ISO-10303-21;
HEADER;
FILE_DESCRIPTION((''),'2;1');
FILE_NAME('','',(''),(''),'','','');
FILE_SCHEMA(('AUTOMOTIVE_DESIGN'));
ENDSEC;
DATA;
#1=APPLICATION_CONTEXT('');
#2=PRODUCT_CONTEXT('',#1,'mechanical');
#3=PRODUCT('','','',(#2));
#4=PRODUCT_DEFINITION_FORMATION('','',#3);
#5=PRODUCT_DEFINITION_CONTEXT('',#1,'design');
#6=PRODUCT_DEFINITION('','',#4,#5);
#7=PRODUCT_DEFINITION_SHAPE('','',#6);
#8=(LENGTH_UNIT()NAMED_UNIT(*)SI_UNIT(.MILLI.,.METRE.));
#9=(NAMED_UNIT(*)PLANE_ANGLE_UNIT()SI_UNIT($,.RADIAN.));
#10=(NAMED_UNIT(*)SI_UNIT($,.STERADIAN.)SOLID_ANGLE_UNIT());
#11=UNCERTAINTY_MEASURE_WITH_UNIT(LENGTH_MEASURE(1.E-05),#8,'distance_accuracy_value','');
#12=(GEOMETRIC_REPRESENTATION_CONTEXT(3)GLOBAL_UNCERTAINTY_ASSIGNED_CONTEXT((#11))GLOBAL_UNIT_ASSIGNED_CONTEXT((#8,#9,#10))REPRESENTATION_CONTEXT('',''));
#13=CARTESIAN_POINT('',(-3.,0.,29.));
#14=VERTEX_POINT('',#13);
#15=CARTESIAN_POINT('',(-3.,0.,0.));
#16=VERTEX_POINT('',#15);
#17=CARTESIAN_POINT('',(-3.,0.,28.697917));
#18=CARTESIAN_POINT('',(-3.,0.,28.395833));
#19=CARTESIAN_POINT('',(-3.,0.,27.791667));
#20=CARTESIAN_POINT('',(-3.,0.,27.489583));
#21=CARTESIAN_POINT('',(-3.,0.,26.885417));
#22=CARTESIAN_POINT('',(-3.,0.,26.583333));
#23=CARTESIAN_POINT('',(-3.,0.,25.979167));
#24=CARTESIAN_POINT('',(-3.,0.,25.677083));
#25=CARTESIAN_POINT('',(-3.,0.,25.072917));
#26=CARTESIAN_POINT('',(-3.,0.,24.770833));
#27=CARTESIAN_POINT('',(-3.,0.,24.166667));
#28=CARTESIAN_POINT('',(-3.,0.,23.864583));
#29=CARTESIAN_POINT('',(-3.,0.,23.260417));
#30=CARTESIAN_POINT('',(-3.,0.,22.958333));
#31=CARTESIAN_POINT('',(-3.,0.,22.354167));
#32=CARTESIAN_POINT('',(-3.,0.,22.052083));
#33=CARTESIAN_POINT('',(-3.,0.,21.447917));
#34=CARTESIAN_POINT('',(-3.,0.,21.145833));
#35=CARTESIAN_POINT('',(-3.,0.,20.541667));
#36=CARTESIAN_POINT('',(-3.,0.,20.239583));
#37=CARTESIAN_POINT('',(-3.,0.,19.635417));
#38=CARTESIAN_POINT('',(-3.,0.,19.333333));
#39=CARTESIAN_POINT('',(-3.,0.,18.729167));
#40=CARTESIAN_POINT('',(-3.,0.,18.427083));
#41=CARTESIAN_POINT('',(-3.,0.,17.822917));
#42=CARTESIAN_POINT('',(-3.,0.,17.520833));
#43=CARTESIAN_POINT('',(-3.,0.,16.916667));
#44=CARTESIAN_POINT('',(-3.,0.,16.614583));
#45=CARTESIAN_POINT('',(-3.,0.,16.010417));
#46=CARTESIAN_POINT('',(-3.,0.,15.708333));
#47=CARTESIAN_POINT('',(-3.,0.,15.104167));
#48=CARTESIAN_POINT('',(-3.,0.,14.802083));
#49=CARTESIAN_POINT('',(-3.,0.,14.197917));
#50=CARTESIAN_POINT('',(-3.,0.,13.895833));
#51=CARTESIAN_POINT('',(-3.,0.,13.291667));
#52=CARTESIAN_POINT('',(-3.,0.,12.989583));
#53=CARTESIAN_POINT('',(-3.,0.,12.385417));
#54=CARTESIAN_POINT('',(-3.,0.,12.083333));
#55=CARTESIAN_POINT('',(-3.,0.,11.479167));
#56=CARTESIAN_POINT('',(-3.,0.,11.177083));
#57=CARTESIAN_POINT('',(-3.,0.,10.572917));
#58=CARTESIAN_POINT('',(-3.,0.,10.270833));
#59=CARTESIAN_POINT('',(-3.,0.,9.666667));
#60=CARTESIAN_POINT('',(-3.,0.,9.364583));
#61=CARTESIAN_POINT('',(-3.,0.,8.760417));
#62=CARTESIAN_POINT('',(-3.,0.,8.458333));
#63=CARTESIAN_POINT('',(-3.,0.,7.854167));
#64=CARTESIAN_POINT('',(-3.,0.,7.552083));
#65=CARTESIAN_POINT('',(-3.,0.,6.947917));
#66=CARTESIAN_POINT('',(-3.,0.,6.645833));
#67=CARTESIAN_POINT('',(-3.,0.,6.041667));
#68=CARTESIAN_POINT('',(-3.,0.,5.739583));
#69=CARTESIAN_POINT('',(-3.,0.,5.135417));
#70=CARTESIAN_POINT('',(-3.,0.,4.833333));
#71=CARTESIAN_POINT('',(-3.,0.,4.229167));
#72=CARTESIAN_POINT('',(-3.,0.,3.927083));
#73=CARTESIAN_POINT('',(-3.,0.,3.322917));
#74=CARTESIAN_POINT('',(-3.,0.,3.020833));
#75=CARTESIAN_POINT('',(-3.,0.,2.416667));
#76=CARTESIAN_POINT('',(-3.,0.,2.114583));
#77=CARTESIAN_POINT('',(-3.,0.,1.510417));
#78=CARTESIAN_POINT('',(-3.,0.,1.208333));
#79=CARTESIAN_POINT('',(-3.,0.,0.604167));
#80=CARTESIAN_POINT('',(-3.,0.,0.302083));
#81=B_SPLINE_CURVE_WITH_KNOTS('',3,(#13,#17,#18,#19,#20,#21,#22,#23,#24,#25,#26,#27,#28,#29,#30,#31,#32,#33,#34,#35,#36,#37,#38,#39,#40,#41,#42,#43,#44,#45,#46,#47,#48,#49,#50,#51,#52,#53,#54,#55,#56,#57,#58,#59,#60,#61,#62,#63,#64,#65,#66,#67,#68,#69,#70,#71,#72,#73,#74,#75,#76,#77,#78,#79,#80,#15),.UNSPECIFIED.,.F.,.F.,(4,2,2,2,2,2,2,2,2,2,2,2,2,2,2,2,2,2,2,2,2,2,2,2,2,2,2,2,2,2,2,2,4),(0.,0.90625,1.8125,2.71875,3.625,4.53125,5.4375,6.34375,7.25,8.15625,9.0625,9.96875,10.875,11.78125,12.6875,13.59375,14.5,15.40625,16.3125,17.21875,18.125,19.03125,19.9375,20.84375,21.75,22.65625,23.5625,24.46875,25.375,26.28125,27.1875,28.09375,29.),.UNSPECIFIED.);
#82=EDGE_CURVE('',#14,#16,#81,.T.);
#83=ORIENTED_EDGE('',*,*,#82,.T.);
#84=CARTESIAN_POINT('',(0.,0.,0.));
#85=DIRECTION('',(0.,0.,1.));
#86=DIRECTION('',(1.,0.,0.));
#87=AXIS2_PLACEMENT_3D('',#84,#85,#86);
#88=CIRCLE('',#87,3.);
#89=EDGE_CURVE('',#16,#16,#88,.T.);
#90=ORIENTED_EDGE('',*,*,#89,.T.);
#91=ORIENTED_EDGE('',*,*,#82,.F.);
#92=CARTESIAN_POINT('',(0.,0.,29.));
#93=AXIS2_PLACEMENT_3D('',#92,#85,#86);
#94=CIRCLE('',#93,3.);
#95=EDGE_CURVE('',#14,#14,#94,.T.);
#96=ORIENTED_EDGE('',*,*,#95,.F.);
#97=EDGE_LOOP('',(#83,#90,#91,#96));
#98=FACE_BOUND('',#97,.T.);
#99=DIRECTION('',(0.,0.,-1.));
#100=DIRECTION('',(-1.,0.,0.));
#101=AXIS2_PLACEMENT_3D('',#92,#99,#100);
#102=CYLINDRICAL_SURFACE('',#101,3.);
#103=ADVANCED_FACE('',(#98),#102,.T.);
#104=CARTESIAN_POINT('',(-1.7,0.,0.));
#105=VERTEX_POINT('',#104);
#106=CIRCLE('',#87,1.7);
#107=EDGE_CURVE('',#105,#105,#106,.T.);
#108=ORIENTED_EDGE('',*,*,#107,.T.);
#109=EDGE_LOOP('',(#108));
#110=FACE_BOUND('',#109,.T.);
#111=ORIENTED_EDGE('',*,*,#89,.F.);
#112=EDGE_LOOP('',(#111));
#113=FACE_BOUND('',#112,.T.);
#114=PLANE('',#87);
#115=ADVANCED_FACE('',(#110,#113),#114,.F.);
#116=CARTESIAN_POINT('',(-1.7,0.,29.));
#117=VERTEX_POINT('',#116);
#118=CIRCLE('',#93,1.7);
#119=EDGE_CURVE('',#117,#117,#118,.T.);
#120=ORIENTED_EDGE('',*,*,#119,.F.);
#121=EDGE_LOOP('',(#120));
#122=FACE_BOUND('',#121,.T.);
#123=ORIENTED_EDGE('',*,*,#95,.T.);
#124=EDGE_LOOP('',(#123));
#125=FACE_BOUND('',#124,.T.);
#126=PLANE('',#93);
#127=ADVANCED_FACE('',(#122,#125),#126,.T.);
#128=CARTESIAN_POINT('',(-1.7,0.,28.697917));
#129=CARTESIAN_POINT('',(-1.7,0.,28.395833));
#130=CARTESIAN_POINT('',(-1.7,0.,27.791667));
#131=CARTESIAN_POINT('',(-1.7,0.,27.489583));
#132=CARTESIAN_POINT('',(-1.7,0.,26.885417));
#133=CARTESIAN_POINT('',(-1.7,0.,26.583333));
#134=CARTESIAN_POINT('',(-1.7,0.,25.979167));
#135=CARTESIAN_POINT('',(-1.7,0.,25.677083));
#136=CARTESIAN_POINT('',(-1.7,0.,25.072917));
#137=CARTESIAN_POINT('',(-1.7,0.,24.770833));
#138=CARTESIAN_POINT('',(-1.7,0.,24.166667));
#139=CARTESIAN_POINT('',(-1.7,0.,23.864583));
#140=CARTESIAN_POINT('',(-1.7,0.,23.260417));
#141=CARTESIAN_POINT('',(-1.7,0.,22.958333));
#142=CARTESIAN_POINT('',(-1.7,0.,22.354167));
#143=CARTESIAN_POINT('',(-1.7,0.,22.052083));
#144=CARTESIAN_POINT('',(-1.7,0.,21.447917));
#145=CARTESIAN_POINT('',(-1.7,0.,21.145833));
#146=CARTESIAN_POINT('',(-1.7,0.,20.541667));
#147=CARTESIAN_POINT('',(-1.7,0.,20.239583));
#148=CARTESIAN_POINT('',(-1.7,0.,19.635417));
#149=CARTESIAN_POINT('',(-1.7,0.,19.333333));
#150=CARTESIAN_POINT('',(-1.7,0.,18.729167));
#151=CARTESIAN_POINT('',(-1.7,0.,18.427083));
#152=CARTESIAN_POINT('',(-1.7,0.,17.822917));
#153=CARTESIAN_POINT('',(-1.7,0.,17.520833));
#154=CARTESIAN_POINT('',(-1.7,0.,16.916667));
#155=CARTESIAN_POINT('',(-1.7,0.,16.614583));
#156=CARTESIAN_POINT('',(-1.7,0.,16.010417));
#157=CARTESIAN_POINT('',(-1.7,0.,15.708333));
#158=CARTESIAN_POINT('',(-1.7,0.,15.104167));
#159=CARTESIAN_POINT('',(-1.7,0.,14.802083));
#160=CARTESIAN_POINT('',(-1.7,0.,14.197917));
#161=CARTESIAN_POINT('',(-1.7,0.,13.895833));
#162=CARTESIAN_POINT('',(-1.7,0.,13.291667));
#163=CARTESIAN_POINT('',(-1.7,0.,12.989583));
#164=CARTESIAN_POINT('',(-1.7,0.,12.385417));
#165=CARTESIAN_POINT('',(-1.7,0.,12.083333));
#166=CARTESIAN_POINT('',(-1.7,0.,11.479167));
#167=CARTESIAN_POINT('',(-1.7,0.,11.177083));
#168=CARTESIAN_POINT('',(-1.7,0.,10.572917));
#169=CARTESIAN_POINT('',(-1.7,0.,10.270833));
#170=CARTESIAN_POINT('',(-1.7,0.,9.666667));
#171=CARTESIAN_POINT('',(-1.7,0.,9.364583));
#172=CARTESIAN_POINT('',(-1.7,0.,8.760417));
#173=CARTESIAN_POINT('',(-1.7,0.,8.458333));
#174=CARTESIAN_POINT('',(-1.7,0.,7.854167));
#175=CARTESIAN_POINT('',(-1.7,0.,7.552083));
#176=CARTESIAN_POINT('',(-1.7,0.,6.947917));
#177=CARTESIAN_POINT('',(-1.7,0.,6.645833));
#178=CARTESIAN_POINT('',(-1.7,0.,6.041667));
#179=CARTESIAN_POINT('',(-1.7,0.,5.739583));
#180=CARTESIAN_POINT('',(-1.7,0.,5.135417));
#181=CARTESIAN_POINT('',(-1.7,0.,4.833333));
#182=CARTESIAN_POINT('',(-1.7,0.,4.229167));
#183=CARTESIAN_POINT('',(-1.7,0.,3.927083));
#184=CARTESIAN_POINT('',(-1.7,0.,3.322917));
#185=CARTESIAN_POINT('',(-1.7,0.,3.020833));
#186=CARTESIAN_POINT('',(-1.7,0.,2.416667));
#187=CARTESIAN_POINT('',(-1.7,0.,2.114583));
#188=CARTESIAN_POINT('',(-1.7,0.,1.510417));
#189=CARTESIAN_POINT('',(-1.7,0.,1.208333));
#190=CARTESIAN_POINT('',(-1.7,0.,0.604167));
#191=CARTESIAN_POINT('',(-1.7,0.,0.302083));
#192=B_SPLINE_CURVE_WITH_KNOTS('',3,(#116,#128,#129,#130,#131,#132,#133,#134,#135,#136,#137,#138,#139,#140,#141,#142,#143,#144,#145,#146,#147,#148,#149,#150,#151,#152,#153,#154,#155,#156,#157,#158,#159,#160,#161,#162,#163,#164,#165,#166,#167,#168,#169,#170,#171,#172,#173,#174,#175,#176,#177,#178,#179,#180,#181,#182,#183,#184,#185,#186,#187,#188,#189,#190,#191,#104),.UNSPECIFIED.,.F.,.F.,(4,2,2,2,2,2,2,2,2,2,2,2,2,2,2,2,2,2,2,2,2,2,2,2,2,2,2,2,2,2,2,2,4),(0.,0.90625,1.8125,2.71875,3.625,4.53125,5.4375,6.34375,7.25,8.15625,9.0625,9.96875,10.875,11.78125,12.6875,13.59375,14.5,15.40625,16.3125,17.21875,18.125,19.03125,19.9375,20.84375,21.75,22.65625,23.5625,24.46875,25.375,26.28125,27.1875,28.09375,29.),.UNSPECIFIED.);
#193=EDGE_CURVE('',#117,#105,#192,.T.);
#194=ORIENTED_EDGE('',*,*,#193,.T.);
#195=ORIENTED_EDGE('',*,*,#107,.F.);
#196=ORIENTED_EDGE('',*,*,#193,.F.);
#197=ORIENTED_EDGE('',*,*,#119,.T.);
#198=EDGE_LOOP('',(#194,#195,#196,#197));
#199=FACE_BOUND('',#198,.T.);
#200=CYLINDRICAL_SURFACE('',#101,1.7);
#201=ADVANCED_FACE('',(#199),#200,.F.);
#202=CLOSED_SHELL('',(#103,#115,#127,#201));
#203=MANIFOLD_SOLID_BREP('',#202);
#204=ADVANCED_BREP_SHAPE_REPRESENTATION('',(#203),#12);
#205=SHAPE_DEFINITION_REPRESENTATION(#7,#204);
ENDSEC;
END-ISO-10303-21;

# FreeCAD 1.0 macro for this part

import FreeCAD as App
import Part
import Sketcher

V = App.Vector

doc = App.newDocument("Part")
params = doc.addObject("Spreadsheet::Sheet", "Params")
for row, (alias, value) in enumerate([
    ("sketch1_diameter", "6 mm"),
    ("sketch1_diameter2", "3.4 mm"),
    ("pad1_length", "29 mm"),
], start=1):
    params.set(f"A{row}", alias)
    params.set(f"B{row}", "=" + value)
    params.setAlias(f"B{row}", alias)

body = doc.addObject("PartDesign::Body", "Body")

sketch1 = doc.addObject("Sketcher::SketchObject", "Sketch")
body.addObject(sketch1)
sketch1.AttachmentSupport = (doc.XY_Plane, [""])
sketch1.MapMode = "FlatFace"
sketch1.addGeometry([
    Part.Circle(V(0, 0, 0), V(0, 0, 1), 3),
    Part.Circle(V(0, 0, 0), V(0, 0, 1), 1.7),
], False)
sketch1.addConstraint([
    Sketcher.Constraint("Coincident", 0, 3, -1, 1),
    Sketcher.Constraint("Coincident", 1, 3, -1, 1),
    Sketcher.Constraint("Diameter", 0, 6.0),
    Sketcher.Constraint("Diameter", 1, 3.4),
])
sketch1.setExpression("Constraints[2]", "Params.sketch1_diameter")
sketch1.setExpression("Constraints[3]", "Params.sketch1_diameter2")
pad1 = doc.addObject("PartDesign::Pad", "Pad")
body.addObject(pad1)
pad1.Profile = sketch1
pad1.setExpression("Length", "Params.pad1_length")

doc.recompute()
